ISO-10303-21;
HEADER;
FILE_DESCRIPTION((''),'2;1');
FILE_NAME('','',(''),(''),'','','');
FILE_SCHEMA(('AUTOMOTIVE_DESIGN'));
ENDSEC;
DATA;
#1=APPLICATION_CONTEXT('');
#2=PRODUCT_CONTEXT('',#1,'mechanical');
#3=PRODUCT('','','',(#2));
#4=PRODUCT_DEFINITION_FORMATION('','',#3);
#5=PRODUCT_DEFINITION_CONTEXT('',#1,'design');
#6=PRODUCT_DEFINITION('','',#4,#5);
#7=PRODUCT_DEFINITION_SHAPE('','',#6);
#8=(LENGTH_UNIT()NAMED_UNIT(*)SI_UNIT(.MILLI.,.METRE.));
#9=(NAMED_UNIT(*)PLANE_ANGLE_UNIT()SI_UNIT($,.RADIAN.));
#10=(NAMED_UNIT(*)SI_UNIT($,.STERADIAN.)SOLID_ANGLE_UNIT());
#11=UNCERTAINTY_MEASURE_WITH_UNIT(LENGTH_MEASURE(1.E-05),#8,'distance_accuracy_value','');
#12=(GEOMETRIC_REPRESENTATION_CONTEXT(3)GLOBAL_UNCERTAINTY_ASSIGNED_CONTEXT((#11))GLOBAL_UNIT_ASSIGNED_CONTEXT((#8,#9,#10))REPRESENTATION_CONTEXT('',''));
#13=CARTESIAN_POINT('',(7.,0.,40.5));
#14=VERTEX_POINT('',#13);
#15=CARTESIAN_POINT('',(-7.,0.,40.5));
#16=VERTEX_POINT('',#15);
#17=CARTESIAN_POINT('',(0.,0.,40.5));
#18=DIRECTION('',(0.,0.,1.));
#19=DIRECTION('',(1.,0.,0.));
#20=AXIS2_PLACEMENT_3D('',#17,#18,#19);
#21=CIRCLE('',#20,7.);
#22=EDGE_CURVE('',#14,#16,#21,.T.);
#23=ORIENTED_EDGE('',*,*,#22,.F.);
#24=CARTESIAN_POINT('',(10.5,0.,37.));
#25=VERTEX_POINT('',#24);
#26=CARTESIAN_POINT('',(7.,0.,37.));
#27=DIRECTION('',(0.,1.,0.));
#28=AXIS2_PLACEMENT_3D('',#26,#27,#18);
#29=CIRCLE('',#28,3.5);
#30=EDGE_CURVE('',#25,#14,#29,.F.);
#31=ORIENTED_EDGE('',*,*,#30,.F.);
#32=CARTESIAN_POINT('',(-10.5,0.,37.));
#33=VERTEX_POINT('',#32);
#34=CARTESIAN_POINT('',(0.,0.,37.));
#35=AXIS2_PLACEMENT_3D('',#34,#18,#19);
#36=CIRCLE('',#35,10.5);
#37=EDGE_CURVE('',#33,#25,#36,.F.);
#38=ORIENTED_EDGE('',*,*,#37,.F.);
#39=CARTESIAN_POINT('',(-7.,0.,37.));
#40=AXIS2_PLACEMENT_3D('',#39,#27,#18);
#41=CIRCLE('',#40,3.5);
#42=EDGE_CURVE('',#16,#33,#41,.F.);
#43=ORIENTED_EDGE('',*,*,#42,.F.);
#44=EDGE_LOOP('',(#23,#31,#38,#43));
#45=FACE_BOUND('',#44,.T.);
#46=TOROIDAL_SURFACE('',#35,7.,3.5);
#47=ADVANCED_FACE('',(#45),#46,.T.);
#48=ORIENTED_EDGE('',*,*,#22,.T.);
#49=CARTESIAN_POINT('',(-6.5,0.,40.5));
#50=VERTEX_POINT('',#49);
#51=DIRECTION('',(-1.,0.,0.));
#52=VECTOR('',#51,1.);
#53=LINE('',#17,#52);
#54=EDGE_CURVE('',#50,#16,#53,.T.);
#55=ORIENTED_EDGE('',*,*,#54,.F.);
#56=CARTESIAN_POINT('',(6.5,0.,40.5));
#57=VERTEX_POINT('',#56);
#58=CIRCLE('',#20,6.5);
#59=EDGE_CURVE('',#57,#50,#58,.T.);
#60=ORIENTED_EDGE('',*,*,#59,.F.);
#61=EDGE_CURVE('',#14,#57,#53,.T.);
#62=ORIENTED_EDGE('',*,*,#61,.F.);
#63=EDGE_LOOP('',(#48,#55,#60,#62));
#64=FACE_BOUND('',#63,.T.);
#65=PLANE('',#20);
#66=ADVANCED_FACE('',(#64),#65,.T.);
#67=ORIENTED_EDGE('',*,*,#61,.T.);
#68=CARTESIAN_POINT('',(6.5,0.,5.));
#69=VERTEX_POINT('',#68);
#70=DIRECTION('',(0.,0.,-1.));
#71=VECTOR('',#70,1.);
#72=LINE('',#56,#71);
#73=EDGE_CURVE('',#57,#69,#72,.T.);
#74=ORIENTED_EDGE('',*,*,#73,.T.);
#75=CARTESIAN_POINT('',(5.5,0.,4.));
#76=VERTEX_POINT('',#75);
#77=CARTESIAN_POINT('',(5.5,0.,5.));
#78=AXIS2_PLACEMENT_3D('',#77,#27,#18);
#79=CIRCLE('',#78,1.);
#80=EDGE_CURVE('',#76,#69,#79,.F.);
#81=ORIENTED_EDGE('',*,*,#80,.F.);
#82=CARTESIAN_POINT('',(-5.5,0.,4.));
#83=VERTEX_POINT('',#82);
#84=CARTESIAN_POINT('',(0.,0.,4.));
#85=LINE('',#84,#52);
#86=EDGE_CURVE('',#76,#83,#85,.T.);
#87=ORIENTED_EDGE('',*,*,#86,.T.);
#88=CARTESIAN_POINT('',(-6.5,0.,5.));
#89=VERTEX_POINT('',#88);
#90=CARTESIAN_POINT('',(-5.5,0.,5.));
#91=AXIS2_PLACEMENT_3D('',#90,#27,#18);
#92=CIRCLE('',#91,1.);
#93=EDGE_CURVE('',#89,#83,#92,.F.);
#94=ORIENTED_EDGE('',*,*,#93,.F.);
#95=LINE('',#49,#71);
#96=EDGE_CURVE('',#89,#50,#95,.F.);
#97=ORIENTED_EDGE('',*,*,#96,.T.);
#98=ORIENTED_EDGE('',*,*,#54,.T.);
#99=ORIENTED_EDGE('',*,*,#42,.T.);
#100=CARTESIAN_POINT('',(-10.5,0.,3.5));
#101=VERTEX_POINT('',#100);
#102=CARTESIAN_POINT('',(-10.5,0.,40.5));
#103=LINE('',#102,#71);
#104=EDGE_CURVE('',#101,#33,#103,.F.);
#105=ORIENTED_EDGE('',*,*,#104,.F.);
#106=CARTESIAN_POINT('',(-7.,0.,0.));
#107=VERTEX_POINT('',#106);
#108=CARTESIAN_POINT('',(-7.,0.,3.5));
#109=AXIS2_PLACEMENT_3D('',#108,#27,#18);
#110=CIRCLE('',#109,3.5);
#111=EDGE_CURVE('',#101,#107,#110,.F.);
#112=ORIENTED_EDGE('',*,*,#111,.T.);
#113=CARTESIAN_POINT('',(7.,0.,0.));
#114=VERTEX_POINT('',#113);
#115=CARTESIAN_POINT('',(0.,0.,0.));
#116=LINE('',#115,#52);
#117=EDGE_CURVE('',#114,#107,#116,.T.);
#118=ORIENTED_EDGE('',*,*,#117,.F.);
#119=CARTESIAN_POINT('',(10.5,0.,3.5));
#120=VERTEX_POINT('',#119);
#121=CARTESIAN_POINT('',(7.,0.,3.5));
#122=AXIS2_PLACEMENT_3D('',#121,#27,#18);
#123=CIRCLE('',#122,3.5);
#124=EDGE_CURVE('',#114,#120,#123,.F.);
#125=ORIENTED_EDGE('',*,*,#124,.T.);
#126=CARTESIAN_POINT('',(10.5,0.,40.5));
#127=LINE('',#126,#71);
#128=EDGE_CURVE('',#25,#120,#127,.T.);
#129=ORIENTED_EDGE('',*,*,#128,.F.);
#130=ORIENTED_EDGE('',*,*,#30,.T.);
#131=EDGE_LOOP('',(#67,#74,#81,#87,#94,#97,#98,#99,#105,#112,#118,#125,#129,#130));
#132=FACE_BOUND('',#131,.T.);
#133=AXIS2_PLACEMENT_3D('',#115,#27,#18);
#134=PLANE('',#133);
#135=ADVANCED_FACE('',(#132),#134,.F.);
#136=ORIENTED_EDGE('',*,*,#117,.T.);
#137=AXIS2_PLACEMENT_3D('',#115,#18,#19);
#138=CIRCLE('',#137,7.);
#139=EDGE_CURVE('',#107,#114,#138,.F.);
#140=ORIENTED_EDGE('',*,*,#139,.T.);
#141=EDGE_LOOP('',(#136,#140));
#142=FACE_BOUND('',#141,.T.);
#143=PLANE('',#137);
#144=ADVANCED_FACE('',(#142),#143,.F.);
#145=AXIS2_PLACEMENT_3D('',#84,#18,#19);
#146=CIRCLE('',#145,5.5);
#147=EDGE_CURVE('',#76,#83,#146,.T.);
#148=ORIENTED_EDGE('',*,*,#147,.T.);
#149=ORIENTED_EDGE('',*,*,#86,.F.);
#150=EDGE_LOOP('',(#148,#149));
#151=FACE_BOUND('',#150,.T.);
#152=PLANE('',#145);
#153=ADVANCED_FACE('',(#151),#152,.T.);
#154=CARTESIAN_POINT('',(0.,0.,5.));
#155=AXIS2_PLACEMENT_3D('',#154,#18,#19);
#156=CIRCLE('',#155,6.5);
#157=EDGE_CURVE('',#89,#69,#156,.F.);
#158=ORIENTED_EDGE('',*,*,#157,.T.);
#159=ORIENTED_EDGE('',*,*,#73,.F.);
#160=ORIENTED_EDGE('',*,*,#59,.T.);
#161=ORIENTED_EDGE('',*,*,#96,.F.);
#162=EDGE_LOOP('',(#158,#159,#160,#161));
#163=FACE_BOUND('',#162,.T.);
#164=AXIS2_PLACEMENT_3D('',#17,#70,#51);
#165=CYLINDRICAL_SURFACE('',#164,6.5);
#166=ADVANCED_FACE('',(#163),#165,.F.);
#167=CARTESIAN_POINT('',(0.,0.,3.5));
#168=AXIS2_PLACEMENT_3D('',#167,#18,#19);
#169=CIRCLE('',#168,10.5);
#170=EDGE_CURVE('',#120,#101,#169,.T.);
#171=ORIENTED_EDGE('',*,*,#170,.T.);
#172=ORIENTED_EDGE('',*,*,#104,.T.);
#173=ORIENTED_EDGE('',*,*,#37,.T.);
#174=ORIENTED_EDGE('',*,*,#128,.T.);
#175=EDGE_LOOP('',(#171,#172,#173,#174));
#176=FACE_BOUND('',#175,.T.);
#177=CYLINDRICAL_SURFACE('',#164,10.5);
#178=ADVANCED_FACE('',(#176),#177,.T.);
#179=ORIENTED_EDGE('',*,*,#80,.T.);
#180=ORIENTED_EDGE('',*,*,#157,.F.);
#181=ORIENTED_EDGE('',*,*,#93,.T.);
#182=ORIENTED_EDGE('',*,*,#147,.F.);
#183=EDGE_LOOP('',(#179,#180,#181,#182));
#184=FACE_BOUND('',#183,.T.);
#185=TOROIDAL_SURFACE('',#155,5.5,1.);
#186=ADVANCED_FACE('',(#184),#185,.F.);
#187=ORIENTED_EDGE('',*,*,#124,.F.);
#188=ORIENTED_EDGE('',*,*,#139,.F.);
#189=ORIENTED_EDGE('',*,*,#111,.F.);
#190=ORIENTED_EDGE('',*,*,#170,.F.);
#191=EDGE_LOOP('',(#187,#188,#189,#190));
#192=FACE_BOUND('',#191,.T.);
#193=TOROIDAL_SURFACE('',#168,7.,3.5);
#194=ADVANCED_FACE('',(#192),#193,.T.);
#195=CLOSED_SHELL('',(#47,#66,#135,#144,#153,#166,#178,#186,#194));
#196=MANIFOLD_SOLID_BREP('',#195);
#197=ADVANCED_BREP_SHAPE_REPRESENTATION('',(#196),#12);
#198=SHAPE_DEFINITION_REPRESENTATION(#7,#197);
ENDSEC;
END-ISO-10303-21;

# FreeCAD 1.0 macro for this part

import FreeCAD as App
import Part
import Sketcher
Q = App.Units.Quantity


def edges_at(feature, points):
    """Names of the edges that pass closest to the given points."""
    edges = feature.Shape.Edges
    near = lambda p: min(range(len(edges)), key=lambda i: edges[i].distToShape(Part.Vertex(*p))[0])
    return sorted({f"Edge{near(p) + 1}" for p in points})


def faces_at(feature, points):
    """Names of the faces that lie closest to the given points."""
    faces = feature.Shape.Faces
    near = lambda p: min(range(len(faces)), key=lambda i: faces[i].distToShape(Part.Vertex(*p))[0])
    return sorted({f"Face{near(p) + 1}" for p in points})

doc = App.newDocument("Part")
params = doc.addObject("Spreadsheet::Sheet", "Params")
for row, (alias, value) in enumerate([
    ("sketch1_diameter", "21 mm"),
    ("pad1_length", "40.5 mm"),
    ("thickness_wall", "4 mm"),
    ("fillet_radius", "3.5 mm"),
    ("fillet2_radius", "3.5 mm"),
    ("fillet3_radius", "1 mm"),
    ("pocket1_length", "40.5 mm"),
], start=1):
    params.set(f"A{row}", alias)
    params.set(f"B{row}", "=" + value)
    params.setAlias(f"B{row}", alias)

body = doc.addObject("PartDesign::Body", "Body")

# Sketch on XY plane
sketch1 = body.newObject("Sketcher::SketchObject", "Sketch")
sketch1.AttachmentSupport = (doc.getObject("XY_Plane"), [""])
sketch1.MapMode = "FlatFace"
sketch1.addGeometry(Part.Circle(App.Vector(0, 0, 0), App.Vector(0, 0, 1), 10), False)
sketch1.addConstraint(Sketcher.Constraint("Coincident", 0, 3, -1, 1))
sketch1.addConstraint(Sketcher.Constraint("Diameter", 0, Q("21 mm")))
sketch1.setExpression("Constraints[1]", "Params.sketch1_diameter")
pad1 = body.newObject("PartDesign::Pad", "Pad")
pad1.Profile = sketch1
pad1.setExpression("Length", "Params.pad1_length")
doc.recompute()

thickness = body.newObject("PartDesign::Thickness", "Thickness")
thickness.Base = (pad1, faces_at(pad1, [(0, 0, 40.5)]))
thickness.setExpression("Value", "Params.thickness_wall")
thickness.Reversed = True
thickness.Join = "Intersection"
doc.recompute()

fillet = body.newObject("PartDesign::Fillet", "Fillet")
fillet.Base = (thickness, edges_at(thickness, [(-10.5, 0, 40.5)]))
fillet.setExpression("Radius", "Params.fillet_radius")
doc.recompute()

fillet2 = body.newObject("PartDesign::Fillet", "Fillet001")
fillet2.Base = (fillet, edges_at(fillet, [(-10.5, 0, 0)]))
fillet2.setExpression("Radius", "Params.fillet2_radius")
doc.recompute()

fillet3 = body.newObject("PartDesign::Fillet", "Fillet002")
fillet3.Base = (fillet2, edges_at(fillet2, [(-6.5, 0, 4)]))
fillet3.setExpression("Radius", "Params.fillet3_radius")

# Sketch on XZ plane
sketch2 = body.newObject("Sketcher::SketchObject", "Sketch001")
sketch2.AttachmentSupport = (doc.getObject("XZ_Plane"), [""])
sketch2.MapMode = "FlatFace"
sketch2.addGeometry(Part.LineSegment(App.Vector(-18, -9, 0), App.Vector(-18, 46, 0)), False)
sketch2.addGeometry(Part.LineSegment(App.Vector(-18, 46, 0), App.Vector(20, 46, 0)), False)
sketch2.addGeometry(Part.LineSegment(App.Vector(20, 46, 0), App.Vector(20, -9, 0)), False)
sketch2.addGeometry(Part.LineSegment(App.Vector(20, -9, 0), App.Vector(-18, -9, 0)), False)
sketch2.addConstraint(Sketcher.Constraint("Coincident", 0, 2, 1, 1))
sketch2.addConstraint(Sketcher.Constraint("Coincident", 1, 2, 2, 1))
sketch2.addConstraint(Sketcher.Constraint("Coincident", 2, 2, 3, 1))
sketch2.addConstraint(Sketcher.Constraint("Coincident", 3, 2, 0, 1))
sketch2.addConstraint(Sketcher.Constraint("Vertical", 0))
sketch2.addConstraint(Sketcher.Constraint("Horizontal", 1))
sketch2.addConstraint(Sketcher.Constraint("Vertical", 2))
sketch2.addConstraint(Sketcher.Constraint("Horizontal", 3))
sketch2.addConstraint(Sketcher.Constraint("DistanceX", 1, 1, 1, 2, Q("37.590072 mm")))
sketch2.addConstraint(Sketcher.Constraint("DistanceY", 0, 1, 0, 2, Q("54.748835 mm")))
sketch2.addConstraint(Sketcher.Constraint("DistanceY", 2, 2, -1, 1, Q("9.11448 mm")))
sketch2.addConstraint(Sketcher.Constraint("DistanceX", 0, 2, -1, 1, Q("17.954787 mm")))
pocket1 = body.newObject("PartDesign::Pocket", "Pocket")
pocket1.Profile = sketch2
pocket1.setExpression("Length", "Params.pocket1_length")
pocket1.Reversed = True

doc.recompute()
